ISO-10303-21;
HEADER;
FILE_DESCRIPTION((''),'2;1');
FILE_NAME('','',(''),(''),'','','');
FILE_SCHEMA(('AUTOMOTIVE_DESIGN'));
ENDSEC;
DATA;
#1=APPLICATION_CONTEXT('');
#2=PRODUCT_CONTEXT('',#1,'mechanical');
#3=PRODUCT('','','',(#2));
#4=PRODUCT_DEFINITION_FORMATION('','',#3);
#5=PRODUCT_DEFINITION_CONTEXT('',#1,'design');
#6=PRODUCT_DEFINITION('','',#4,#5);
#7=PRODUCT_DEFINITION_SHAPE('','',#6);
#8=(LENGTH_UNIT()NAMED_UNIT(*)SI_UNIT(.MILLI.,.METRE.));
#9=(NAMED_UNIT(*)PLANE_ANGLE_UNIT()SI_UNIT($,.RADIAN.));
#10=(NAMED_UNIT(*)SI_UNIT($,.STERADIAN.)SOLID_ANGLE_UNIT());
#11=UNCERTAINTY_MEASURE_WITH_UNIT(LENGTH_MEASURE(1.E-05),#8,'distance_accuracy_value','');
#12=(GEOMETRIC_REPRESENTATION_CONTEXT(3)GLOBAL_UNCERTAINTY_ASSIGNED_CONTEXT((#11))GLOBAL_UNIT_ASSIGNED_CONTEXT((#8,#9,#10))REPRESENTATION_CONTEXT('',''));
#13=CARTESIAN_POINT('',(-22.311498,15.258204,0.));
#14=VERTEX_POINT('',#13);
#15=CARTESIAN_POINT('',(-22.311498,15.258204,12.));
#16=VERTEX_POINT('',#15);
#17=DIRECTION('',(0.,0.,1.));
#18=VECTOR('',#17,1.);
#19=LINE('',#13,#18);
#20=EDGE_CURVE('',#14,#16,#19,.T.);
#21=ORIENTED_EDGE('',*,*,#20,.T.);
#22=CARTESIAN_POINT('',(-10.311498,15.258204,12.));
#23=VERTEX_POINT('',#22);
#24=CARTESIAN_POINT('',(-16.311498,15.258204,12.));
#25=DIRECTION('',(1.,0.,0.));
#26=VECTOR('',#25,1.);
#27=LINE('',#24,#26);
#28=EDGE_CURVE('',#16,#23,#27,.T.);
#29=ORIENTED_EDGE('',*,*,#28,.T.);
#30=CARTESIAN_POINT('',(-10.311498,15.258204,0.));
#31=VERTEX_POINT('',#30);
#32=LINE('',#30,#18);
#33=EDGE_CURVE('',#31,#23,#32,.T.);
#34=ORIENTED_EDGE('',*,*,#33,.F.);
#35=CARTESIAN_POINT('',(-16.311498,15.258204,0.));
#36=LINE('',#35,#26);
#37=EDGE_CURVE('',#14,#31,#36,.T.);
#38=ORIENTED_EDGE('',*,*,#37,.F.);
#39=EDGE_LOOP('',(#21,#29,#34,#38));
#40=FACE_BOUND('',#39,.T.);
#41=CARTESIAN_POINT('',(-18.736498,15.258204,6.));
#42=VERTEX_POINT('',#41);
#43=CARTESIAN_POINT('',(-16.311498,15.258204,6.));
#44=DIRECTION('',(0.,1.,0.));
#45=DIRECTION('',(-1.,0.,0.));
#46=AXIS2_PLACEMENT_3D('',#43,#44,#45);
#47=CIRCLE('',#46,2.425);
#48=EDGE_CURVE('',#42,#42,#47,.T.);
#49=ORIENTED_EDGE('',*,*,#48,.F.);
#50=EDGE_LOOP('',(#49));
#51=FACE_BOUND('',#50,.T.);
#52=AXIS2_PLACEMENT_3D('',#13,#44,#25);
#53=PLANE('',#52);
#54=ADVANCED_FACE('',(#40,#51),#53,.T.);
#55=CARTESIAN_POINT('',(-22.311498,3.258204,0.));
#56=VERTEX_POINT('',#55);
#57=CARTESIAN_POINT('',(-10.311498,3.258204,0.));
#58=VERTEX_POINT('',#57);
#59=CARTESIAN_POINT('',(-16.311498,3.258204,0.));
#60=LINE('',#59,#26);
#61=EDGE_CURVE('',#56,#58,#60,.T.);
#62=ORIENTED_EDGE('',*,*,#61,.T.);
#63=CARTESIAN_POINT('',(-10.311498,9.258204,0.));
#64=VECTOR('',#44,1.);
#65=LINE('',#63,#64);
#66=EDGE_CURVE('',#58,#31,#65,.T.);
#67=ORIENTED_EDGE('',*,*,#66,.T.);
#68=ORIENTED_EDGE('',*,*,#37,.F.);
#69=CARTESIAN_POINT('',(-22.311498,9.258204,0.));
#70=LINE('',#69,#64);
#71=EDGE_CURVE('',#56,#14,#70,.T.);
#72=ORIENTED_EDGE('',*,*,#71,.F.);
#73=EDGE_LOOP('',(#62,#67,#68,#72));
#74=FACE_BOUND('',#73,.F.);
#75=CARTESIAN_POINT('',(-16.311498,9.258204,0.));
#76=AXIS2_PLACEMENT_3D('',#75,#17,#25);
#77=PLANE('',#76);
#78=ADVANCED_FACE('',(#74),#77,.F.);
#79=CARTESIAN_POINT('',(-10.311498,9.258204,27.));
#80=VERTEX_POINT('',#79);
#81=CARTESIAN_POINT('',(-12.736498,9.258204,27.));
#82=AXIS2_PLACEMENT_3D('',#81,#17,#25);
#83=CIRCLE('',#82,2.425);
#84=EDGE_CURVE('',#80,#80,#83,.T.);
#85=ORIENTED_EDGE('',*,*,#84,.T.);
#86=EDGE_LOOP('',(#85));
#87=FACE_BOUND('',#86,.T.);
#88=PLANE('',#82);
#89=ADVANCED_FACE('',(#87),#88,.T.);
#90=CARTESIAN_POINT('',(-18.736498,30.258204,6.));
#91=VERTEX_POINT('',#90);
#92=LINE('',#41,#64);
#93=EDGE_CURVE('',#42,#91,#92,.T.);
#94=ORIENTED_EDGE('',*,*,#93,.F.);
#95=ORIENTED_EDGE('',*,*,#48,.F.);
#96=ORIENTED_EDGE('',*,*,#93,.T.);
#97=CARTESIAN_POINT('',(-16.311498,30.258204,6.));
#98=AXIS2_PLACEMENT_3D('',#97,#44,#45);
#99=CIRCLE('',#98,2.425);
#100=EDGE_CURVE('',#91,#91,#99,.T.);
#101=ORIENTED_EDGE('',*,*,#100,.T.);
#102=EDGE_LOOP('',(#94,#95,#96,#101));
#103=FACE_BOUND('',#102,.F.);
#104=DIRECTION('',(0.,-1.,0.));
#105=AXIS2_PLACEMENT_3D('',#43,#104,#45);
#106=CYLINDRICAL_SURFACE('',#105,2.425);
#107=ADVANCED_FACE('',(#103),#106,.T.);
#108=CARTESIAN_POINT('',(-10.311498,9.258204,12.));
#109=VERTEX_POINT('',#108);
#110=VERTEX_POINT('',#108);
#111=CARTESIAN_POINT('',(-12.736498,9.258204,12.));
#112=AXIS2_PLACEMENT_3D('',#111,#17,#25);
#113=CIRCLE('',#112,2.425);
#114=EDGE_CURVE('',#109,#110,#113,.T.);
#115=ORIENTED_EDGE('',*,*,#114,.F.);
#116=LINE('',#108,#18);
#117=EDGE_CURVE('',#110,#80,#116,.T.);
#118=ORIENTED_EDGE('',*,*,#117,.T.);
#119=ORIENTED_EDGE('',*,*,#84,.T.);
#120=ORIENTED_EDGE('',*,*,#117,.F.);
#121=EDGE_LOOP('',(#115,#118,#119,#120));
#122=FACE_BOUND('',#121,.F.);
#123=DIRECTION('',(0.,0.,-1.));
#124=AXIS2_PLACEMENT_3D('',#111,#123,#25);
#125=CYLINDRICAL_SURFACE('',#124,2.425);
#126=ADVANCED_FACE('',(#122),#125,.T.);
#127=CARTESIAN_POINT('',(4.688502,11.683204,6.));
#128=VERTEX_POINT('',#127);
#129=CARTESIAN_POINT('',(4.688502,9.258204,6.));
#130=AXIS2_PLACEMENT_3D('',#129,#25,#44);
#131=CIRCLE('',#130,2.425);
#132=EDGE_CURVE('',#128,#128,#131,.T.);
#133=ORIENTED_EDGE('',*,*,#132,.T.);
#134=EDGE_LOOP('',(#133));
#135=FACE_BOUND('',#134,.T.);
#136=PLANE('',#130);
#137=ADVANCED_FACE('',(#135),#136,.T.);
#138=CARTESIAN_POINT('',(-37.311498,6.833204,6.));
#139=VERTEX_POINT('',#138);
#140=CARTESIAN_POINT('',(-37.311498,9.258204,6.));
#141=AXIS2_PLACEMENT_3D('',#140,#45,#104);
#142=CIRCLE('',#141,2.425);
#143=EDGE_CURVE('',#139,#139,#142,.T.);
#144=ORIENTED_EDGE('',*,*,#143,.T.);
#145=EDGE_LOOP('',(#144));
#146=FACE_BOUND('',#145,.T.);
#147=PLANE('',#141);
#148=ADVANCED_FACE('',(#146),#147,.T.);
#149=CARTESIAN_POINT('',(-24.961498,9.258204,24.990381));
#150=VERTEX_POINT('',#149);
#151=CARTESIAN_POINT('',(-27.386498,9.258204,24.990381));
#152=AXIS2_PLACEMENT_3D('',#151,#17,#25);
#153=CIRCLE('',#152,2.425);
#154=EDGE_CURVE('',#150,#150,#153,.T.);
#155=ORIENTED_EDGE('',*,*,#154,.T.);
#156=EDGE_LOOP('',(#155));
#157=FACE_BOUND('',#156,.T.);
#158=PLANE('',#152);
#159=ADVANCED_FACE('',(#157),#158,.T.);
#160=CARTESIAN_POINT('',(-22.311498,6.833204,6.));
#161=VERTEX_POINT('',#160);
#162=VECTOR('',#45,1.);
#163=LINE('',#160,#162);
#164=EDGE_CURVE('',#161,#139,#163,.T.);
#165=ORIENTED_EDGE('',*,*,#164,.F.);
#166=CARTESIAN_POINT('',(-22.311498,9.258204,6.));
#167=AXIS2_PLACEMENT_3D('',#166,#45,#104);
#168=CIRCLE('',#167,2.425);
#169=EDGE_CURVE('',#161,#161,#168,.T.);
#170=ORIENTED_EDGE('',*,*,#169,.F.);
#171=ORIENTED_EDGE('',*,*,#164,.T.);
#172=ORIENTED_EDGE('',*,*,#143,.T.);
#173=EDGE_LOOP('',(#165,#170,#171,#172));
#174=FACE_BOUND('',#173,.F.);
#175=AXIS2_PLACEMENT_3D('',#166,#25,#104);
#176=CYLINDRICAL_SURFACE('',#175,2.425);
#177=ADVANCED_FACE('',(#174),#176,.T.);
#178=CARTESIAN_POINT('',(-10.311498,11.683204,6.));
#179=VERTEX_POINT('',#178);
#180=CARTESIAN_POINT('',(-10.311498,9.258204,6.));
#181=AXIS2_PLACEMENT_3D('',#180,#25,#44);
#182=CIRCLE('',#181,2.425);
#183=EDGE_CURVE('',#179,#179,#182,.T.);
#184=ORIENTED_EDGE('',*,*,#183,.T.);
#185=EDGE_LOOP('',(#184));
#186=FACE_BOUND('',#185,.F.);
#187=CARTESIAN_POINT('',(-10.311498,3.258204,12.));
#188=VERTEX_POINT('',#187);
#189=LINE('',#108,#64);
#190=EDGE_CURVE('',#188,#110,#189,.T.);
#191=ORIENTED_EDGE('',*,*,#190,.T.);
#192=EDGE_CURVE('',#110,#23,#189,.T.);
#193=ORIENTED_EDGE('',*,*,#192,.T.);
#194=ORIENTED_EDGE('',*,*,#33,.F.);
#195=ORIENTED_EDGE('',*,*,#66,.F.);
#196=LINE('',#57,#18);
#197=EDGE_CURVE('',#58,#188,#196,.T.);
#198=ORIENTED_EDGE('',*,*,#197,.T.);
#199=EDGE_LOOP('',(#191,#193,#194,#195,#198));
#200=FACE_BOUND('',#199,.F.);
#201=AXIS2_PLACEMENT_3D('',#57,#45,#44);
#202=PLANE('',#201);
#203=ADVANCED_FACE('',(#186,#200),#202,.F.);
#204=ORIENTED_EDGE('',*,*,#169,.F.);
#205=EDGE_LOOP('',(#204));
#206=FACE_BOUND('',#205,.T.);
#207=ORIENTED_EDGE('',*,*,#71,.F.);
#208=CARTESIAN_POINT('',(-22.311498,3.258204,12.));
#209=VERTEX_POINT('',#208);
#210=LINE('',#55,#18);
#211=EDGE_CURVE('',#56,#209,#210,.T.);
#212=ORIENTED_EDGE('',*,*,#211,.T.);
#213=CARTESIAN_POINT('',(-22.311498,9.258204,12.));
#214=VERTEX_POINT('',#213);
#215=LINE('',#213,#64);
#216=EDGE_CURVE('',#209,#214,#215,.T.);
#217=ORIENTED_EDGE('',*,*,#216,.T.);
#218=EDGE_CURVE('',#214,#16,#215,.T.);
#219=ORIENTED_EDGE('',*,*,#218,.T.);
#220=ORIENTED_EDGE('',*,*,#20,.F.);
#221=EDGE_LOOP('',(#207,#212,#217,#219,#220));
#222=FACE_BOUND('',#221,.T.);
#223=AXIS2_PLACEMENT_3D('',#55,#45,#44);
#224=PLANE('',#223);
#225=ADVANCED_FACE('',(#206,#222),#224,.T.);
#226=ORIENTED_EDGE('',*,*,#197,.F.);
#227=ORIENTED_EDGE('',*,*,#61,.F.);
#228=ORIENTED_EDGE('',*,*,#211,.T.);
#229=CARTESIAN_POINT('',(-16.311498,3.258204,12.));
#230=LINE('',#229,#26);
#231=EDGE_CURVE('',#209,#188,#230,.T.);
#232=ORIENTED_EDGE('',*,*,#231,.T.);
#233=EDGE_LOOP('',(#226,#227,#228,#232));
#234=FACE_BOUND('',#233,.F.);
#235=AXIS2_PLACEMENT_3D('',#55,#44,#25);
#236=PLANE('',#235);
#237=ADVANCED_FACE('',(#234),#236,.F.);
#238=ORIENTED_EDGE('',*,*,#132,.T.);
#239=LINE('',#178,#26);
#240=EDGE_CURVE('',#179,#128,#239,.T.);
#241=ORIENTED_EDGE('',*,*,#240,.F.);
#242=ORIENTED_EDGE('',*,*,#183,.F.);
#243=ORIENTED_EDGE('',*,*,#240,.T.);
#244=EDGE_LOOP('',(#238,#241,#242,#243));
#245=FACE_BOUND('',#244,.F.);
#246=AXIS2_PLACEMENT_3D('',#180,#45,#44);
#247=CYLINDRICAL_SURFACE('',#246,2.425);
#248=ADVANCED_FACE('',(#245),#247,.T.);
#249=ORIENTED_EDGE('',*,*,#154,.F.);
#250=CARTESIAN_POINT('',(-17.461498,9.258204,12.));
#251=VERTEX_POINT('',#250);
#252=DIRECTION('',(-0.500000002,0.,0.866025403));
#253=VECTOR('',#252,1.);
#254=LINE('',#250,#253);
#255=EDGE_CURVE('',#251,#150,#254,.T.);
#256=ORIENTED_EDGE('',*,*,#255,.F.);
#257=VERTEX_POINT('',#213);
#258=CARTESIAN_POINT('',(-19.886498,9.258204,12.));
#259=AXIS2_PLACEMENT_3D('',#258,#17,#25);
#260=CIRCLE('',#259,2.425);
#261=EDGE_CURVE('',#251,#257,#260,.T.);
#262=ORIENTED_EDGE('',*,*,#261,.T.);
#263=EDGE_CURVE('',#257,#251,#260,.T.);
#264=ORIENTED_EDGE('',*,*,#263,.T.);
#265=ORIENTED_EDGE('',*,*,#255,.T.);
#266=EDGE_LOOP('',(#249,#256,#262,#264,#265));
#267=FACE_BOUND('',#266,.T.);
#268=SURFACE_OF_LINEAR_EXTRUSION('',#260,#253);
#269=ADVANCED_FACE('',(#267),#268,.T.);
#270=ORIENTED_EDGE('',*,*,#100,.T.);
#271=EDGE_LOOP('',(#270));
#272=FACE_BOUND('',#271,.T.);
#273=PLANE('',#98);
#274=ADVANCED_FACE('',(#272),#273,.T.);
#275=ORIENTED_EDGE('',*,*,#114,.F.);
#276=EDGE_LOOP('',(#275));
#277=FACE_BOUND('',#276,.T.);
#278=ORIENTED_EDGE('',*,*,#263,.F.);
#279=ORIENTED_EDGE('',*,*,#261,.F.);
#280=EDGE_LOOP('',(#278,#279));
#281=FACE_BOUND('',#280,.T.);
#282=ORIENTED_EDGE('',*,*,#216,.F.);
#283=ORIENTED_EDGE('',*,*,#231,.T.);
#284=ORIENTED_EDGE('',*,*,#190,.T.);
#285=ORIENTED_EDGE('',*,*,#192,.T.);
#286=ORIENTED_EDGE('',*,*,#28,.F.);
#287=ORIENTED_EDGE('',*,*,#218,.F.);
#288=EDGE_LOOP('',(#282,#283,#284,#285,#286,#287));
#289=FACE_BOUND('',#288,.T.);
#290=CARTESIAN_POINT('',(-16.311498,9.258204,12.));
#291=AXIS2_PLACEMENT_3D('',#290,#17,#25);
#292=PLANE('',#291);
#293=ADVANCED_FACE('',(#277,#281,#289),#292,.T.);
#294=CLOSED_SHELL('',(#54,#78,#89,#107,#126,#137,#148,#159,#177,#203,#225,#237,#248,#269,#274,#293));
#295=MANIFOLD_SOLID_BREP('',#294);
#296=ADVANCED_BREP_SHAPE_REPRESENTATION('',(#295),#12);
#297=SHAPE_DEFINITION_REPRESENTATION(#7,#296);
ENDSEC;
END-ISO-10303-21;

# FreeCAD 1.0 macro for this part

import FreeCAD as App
import Part
import Sketcher

V = App.Vector
Q = App.Units.Quantity

doc = App.newDocument("Part")
body = doc.addObject("PartDesign::Body", "Body")

# Sketch on XY plane
sketch1 = body.newObject("Sketcher::SketchObject", "Sketch")
sketch1.AttachmentSupport = (doc.getObject("XY_Plane"), [""])
sketch1.MapMode = "FlatFace"
sketch1.addGeometry(Part.LineSegment(V(-22, 15, 0), V(-22, 3, 0)), False)
sketch1.addGeometry(Part.LineSegment(V(-22, 3, 0), V(-10, 3, 0)), False)
sketch1.addGeometry(Part.LineSegment(V(-10, 3, 0), V(-10, 15, 0)), False)
sketch1.addGeometry(Part.LineSegment(V(-10, 15, 0), V(-22, 15, 0)), False)
sketch1.addConstraint(Sketcher.Constraint("Coincident", 0, 2, 1, 1))
sketch1.addConstraint(Sketcher.Constraint("Coincident", 1, 2, 2, 1))
sketch1.addConstraint(Sketcher.Constraint("Coincident", 2, 2, 3, 1))
sketch1.addConstraint(Sketcher.Constraint("Coincident", 3, 2, 0, 1))
sketch1.addConstraint(Sketcher.Constraint("Vertical", 0))
sketch1.addConstraint(Sketcher.Constraint("Horizontal", 1))
sketch1.addConstraint(Sketcher.Constraint("Vertical", 2))
sketch1.addConstraint(Sketcher.Constraint("Horizontal", 3))
sketch1.addConstraint(Sketcher.Constraint("Equal", 3, 0))
sketch1.addConstraint(Sketcher.Constraint("DistanceX", 1, 1, 1, 2, Q("12 mm")))
sketch1.addConstraint(Sketcher.Constraint("DistanceX", 0, 2, -1, 1, Q("22.311498 mm")))
sketch1.addConstraint(Sketcher.Constraint("DistanceY", -1, 1, 0, 2, Q("3.258204 mm")))
pad1 = body.newObject("PartDesign::Pad", "Pad")
pad1.Profile = sketch1
pad1.Length = 12

# Sketch on YZ plane
sketch2 = body.newObject("Sketcher::SketchObject", "Sketch001")
sketch2.AttachmentSupport = (doc.getObject("YZ_Plane"), [""])
sketch2.MapMode = "FlatFace"
sketch2.AttachmentOffset = App.Placement(V(0, 0, -10.311498), App.Rotation())
sketch2.addGeometry(Part.Circle(V(9.3, 6, 0), V(0, 0, 1), 2.4), False)
sketch2.addConstraint(Sketcher.Constraint("Diameter", 0, Q("4.85 mm")))
sketch2.addConstraint(Sketcher.Constraint("DistanceY", -1, 1, 0, 3, Q("6 mm")))
sketch2.addConstraint(Sketcher.Constraint("DistanceX", -1, 1, 0, 3, Q("9.258204 mm")))
pad2 = body.newObject("PartDesign::Pad", "Pad001")
pad2.Profile = sketch2
pad2.Length = 15

# Sketch on YZ plane
sketch3 = body.newObject("Sketcher::SketchObject", "Sketch002")
sketch3.AttachmentSupport = (doc.getObject("YZ_Plane"), [""])
sketch3.MapMode = "FlatFace"
sketch3.AttachmentOffset = App.Placement(V(0, 0, -22.311498), App.Rotation())
sketch3.addGeometry(Part.Circle(V(9.3, 6, 0), V(0, 0, 1), 2.4), False)
sketch3.addConstraint(Sketcher.Constraint("Diameter", 0, Q("4.85 mm")))
sketch3.addConstraint(Sketcher.Constraint("DistanceY", -1, 1, 0, 3, Q("6 mm")))
sketch3.addConstraint(Sketcher.Constraint("DistanceX", -1, 1, 0, 3, Q("9.258204 mm")))
pad3 = body.newObject("PartDesign::Pad", "Pad002")
pad3.Profile = sketch3
pad3.Length = 15
pad3.Reversed = True

# Sketch on XY plane
sketch4 = body.newObject("Sketcher::SketchObject", "Sketch003")
sketch4.AttachmentSupport = (doc.getObject("XY_Plane"), [""])
sketch4.MapMode = "FlatFace"
sketch4.AttachmentOffset = App.Placement(V(0, 0, 12), App.Rotation())
sketch4.addGeometry(Part.Circle(V(-19.9, 9.3, 0), V(0, 0, 1), 2.4), False)
sketch4.addConstraint(Sketcher.Constraint("Diameter", 0, Q("4.85 mm")))
sketch4.addConstraint(Sketcher.Constraint("DistanceX", 0, 3, -1, 1, Q("19.886498 mm")))
sketch4.addConstraint(Sketcher.Constraint("DistanceY", -1, 1, 0, 3, Q("9.258204 mm")))

# Sketch on an angled plane
sketch5 = body.newObject("Sketcher::SketchObject", "Sketch004")
sketch5.Placement = App.Placement(V(-9.718721, 0, -5.611106), App.Rotation(V(-0.500000002, 0, 0.866025403), V(0, 1.000000001, 0), V(-0.866025403, 0, -0.500000002), "ZXY"))
sketch5.addGeometry(Part.LineSegment(V(20, 15, 0), V(35, 15, 0)), False)
sketch5.addConstraint(Sketcher.Constraint("Horizontal", 0))
sketch5.addConstraint(Sketcher.Constraint("DistanceX", 0, 1, 0, 2, Q("15 mm")))
sketch5.addConstraint(Sketcher.Constraint("DistanceX", -1, 1, 0, 1, Q("20.335554 mm")))
sketch5.addConstraint(Sketcher.Constraint("DistanceY", -1, 1, 0, 1, Q("15.258204 mm")))
doc.recompute()

additivepipe = body.newObject("PartDesign::AdditivePipe", "AdditivePipe")
additivepipe.Profile = sketch4
additivepipe.Spine = (sketch5, ["Edge1"])

# Sketch on XY plane
sketch6 = body.newObject("Sketcher::SketchObject", "Sketch005")
sketch6.AttachmentSupport = (doc.getObject("XY_Plane"), [""])
sketch6.MapMode = "FlatFace"
sketch6.AttachmentOffset = App.Placement(V(0, 0, 12), App.Rotation())
sketch6.addGeometry(Part.Circle(V(-12.7, 9.3, 0), V(0, 0, 1), 2.4), False)
sketch6.addConstraint(Sketcher.Constraint("Diameter", 0, Q("4.85 mm")))
sketch6.addConstraint(Sketcher.Constraint("DistanceX", 0, 3, -1, 1, Q("12.736498 mm")))
sketch6.addConstraint(Sketcher.Constraint("DistanceY", -1, 1, 0, 3, Q("9.258204 mm")))
pad4 = body.newObject("PartDesign::Pad", "Pad003")
pad4.Profile = sketch6
pad4.Length = 15

# Sketch on XZ plane
sketch7 = body.newObject("Sketcher::SketchObject", "Sketch006")
sketch7.AttachmentSupport = (doc.getObject("XZ_Plane"), [""])
sketch7.MapMode = "FlatFace"
sketch7.AttachmentOffset = App.Placement(V(0, 0, -15.258204), App.Rotation())
sketch7.addGeometry(Part.Circle(V(-16.3, 6, 0), V(0, 0, 1), 2.4), False)
sketch7.addConstraint(Sketcher.Constraint("Diameter", 0, Q("4.85 mm")))
sketch7.addConstraint(Sketcher.Constraint("DistanceY", -1, 1, 0, 3, Q("6 mm")))
sketch7.addConstraint(Sketcher.Constraint("DistanceX", 0, 3, -1, 1, Q("16.311498 mm")))
pad5 = body.newObject("PartDesign::Pad", "Pad004")
pad5.Profile = sketch7
pad5.Length = 15
pad5.Reversed = True

doc.recompute()
